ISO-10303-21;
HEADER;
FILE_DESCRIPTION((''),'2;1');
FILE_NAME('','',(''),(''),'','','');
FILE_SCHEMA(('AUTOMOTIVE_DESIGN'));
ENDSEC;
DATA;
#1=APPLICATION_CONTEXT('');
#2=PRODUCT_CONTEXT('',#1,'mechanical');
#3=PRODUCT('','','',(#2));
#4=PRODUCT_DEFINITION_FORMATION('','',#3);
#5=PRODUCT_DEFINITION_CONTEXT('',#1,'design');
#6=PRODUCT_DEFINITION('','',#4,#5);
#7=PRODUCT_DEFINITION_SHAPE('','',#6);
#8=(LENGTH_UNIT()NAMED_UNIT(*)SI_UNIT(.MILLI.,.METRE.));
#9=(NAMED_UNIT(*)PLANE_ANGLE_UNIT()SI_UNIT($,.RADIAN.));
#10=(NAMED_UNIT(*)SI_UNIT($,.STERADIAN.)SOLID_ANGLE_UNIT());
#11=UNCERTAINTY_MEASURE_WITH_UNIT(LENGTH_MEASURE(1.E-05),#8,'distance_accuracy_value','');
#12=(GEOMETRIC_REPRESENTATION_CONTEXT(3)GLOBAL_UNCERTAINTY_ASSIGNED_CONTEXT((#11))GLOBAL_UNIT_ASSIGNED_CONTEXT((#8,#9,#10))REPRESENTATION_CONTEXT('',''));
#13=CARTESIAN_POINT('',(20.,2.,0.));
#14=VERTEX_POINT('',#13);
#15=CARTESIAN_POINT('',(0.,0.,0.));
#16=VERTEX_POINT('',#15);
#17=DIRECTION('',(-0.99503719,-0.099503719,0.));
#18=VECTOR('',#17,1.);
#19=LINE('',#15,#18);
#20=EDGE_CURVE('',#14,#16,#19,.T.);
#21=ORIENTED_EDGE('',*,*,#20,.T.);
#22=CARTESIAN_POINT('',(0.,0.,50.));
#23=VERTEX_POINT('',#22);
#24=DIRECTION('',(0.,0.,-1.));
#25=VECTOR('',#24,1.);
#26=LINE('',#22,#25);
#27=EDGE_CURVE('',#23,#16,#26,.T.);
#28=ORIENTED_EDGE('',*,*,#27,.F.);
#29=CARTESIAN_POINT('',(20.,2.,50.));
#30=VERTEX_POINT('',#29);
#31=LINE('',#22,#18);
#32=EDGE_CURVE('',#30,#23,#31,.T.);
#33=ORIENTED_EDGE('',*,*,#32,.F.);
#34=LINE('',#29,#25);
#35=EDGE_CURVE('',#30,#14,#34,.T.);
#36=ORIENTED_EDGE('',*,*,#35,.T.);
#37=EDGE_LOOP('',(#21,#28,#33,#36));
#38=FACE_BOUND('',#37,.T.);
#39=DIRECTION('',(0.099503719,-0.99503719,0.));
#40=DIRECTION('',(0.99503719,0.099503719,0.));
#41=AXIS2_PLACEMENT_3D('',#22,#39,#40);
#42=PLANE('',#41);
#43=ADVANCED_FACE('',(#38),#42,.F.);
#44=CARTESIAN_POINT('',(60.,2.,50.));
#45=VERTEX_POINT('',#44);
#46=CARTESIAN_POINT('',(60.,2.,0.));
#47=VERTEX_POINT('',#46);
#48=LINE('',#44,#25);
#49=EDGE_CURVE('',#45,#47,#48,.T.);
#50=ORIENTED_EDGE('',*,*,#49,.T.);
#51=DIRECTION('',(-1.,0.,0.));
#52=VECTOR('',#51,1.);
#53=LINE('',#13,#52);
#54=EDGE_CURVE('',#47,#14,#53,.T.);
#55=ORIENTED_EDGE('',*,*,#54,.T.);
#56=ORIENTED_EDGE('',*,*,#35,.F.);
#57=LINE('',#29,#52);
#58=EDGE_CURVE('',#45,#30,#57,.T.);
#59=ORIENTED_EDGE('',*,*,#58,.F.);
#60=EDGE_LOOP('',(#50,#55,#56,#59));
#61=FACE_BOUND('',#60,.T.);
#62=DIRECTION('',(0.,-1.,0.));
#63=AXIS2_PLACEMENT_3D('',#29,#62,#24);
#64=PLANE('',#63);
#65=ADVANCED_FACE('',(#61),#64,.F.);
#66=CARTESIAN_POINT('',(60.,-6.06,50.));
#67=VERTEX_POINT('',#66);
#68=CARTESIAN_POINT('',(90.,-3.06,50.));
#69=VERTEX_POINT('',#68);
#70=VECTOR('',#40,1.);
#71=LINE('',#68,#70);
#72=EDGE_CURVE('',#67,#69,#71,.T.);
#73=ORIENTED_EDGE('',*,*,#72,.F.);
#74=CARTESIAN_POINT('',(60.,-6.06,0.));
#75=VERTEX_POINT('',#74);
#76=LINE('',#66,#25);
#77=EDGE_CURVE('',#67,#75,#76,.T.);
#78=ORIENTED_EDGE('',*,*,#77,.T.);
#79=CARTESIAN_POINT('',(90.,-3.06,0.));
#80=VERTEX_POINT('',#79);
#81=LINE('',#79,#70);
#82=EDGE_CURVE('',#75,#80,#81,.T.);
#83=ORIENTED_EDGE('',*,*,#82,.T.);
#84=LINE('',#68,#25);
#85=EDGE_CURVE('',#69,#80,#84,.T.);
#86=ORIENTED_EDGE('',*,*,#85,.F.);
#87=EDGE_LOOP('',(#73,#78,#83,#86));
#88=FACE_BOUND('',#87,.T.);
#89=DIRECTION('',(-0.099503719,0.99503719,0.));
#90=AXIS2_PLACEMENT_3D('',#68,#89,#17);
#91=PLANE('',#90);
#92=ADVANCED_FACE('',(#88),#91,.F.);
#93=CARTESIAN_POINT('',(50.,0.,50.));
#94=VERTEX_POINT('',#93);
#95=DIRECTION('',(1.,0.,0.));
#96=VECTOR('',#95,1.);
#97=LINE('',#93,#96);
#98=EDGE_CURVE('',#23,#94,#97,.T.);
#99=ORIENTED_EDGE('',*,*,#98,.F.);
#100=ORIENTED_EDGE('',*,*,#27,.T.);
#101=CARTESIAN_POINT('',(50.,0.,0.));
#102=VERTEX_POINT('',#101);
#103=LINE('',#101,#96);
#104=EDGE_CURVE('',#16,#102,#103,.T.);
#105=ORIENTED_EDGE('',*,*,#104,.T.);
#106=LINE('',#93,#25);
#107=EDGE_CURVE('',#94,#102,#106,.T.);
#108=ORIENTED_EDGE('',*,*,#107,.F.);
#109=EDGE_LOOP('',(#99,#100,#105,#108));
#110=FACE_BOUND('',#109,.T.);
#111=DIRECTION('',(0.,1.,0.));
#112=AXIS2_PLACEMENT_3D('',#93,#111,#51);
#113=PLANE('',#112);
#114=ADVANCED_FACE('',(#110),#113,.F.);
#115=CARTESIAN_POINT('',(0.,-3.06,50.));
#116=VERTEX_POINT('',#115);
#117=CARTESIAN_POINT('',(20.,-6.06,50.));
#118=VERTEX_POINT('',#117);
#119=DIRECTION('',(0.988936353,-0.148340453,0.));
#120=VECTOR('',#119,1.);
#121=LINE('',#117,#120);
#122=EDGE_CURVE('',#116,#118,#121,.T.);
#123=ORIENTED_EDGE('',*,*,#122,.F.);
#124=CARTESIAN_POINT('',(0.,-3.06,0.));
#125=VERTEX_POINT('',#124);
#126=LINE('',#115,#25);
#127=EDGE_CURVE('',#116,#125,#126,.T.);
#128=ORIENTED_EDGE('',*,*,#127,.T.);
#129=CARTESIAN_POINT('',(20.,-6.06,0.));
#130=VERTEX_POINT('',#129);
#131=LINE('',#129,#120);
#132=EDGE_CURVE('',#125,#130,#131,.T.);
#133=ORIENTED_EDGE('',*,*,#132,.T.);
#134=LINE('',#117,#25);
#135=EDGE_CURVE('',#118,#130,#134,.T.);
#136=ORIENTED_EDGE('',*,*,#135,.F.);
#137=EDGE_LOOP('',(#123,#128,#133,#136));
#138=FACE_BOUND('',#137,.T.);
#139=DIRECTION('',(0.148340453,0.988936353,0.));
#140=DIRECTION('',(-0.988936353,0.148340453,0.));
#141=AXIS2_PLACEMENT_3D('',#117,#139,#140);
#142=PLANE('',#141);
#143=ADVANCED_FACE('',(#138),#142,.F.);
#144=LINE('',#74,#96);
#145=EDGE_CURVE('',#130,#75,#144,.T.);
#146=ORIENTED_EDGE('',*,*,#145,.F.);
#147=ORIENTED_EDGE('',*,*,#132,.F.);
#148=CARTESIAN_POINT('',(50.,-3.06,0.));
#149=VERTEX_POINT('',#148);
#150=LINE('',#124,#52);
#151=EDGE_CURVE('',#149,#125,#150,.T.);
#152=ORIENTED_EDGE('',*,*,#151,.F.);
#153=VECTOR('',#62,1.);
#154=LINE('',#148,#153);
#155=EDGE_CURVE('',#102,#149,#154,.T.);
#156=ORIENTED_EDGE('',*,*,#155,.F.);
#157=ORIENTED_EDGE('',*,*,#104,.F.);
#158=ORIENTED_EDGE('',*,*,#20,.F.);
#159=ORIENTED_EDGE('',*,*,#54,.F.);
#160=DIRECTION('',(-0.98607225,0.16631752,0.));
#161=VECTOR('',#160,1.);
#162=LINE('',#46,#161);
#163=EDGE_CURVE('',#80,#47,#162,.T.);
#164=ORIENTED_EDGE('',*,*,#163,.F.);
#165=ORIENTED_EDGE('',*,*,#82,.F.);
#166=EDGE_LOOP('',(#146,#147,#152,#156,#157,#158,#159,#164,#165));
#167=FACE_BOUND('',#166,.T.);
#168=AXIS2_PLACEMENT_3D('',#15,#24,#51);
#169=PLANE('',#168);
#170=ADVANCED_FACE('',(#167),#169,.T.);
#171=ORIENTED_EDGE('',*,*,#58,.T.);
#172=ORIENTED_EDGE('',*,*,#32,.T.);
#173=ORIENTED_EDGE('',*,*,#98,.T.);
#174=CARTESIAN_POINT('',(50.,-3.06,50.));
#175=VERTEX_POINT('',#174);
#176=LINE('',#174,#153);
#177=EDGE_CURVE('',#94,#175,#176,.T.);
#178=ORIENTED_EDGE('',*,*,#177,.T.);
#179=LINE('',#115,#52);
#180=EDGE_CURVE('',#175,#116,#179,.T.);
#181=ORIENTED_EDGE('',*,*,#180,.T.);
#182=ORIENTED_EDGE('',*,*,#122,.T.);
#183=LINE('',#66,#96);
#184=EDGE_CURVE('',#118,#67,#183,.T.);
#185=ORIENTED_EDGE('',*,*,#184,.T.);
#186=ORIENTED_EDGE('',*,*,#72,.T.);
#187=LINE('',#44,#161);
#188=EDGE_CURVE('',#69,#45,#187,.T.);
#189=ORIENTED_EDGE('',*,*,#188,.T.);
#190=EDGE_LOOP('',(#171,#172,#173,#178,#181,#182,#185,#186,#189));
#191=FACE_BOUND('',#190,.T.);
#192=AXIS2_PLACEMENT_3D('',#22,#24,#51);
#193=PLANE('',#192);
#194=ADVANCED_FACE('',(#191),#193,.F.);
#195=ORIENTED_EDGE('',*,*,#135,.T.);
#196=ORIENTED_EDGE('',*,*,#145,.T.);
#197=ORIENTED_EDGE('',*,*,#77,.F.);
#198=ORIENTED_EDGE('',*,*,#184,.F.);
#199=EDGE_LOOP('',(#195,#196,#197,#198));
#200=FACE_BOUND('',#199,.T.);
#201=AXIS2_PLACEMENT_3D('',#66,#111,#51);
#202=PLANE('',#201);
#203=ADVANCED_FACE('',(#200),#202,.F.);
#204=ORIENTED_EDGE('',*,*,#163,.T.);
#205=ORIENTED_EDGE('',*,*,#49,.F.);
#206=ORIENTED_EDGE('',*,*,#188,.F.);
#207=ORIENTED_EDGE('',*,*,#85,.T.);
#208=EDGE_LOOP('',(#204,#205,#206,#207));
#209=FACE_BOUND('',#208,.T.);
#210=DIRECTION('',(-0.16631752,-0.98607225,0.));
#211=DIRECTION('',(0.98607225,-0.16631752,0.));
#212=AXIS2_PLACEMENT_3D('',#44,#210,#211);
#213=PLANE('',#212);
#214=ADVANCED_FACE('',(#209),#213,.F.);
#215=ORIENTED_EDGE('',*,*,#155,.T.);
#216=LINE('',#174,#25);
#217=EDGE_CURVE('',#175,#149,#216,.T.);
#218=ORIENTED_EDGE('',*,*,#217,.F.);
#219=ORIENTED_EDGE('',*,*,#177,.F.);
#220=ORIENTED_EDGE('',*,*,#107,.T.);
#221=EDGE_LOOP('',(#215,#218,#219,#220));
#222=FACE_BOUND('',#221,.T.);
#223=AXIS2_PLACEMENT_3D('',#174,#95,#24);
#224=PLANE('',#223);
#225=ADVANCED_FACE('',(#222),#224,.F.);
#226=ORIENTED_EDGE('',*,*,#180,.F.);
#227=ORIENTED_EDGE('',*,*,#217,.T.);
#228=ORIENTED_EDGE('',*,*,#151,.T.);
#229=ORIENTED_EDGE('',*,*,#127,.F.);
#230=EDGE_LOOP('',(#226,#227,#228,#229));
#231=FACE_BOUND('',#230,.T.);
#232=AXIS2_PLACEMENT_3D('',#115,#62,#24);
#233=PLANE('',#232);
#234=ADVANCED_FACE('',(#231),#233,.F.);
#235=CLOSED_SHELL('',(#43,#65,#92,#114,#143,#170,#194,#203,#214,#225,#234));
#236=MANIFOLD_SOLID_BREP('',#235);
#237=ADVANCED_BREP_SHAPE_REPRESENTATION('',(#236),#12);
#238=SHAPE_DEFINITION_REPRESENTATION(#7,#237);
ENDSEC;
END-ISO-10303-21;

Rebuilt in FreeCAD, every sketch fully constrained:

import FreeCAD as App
import Part
import Sketcher

doc = App.newDocument("Part")
body = doc.addObject("PartDesign::Body", "Body")

sketch1 = doc.addObject("Sketcher::SketchObject", "Sketch")
body.addObject(sketch1)
sketch1.AttachmentSupport = (doc.XY_Plane, [""])
sketch1.MapMode = "FlatFace"
sketch1.addGeometry(Part.LineSegment(App.Vector(20, 2, 0), App.Vector(0, 0, 0)), False)
sketch1.addGeometry(Part.LineSegment(App.Vector(0, 0, 0), App.Vector(50, 0, 0)), False)
sketch1.addGeometry(Part.LineSegment(App.Vector(50, 0, 0), App.Vector(50, -3.06, 0)), False)
sketch1.addGeometry(Part.LineSegment(App.Vector(50, -3.06, 0), App.Vector(0, -3.06, 0)), False)
sketch1.addGeometry(Part.LineSegment(App.Vector(0, -3.06, 0), App.Vector(20, -6.06, 0)), False)
sketch1.addGeometry(Part.LineSegment(App.Vector(20, -6.06, 0), App.Vector(60, -6.06, 0)), False)
sketch1.addGeometry(Part.LineSegment(App.Vector(60, -6.06, 0), App.Vector(90, -3.06, 0)), False)
sketch1.addGeometry(Part.LineSegment(App.Vector(90, -3.06, 0), App.Vector(60, 2, 0)), False)
sketch1.addGeometry(Part.LineSegment(App.Vector(60, 2, 0), App.Vector(20, 2, 0)), False)
sketch1.addConstraint(Sketcher.Constraint("Coincident", 0, 2, 1, 1))
sketch1.addConstraint(Sketcher.Constraint("Coincident", 1, 2, 2, 1))
sketch1.addConstraint(Sketcher.Constraint("Coincident", 2, 2, 3, 1))
sketch1.addConstraint(Sketcher.Constraint("Coincident", 3, 2, 4, 1))
sketch1.addConstraint(Sketcher.Constraint("Coincident", 4, 2, 5, 1))
sketch1.addConstraint(Sketcher.Constraint("Coincident", 5, 2, 6, 1))
sketch1.addConstraint(Sketcher.Constraint("Coincident", 6, 2, 7, 1))
sketch1.addConstraint(Sketcher.Constraint("Coincident", 7, 2, 8, 1))
sketch1.addConstraint(Sketcher.Constraint("Coincident", 8, 2, 0, 1))
sketch1.addConstraint(Sketcher.Constraint("Horizontal", 1))
sketch1.addConstraint(Sketcher.Constraint("Vertical", 2))
sketch1.addConstraint(Sketcher.Constraint("Horizontal", 3))
sketch1.addConstraint(Sketcher.Constraint("Horizontal", 5))
sketch1.addConstraint(Sketcher.Constraint("Horizontal", 8))
sketch1.addConstraint(Sketcher.Constraint("Coincident", 0, 2, -1, 1))
sketch1.addConstraint(Sketcher.Constraint("PointOnObject", 3, 2, -2))
sketch1.addConstraint(Sketcher.Constraint("Parallel", 0, 6))
sketch1.addConstraint(Sketcher.Constraint("Horizontal", 3, 2, 6, 2))
sketch1.addConstraint(Sketcher.Constraint("Vertical", 5, 2, 7, 2))
sketch1.addConstraint(Sketcher.Constraint("Vertical", 4, 2, 8, 2))
sketch1.addConstraint(Sketcher.Constraint("DistanceX", 1, 1, 1, 2, 50.0))
sketch1.addConstraint(Sketcher.Constraint("DistanceX", 5, 1, 5, 2, 40.0))
sketch1.addConstraint(Sketcher.Constraint("DistanceX", -1, 1, 4, 2, 20.0))
sketch1.addConstraint(Sketcher.Constraint("DistanceX", -1, 1, 6, 2, 90.0))
sketch1.addConstraint(Sketcher.Constraint("DistanceY", -1, 1, 7, 2, 2.0))
sketch1.addConstraint(Sketcher.Constraint("DistanceY", 2, 2, 2, 1, 3.06))
pad1 = doc.addObject("PartDesign::Pad", "Pad")
body.addObject(pad1)
pad1.Profile = sketch1
pad1.Length = 50

doc.recompute()
